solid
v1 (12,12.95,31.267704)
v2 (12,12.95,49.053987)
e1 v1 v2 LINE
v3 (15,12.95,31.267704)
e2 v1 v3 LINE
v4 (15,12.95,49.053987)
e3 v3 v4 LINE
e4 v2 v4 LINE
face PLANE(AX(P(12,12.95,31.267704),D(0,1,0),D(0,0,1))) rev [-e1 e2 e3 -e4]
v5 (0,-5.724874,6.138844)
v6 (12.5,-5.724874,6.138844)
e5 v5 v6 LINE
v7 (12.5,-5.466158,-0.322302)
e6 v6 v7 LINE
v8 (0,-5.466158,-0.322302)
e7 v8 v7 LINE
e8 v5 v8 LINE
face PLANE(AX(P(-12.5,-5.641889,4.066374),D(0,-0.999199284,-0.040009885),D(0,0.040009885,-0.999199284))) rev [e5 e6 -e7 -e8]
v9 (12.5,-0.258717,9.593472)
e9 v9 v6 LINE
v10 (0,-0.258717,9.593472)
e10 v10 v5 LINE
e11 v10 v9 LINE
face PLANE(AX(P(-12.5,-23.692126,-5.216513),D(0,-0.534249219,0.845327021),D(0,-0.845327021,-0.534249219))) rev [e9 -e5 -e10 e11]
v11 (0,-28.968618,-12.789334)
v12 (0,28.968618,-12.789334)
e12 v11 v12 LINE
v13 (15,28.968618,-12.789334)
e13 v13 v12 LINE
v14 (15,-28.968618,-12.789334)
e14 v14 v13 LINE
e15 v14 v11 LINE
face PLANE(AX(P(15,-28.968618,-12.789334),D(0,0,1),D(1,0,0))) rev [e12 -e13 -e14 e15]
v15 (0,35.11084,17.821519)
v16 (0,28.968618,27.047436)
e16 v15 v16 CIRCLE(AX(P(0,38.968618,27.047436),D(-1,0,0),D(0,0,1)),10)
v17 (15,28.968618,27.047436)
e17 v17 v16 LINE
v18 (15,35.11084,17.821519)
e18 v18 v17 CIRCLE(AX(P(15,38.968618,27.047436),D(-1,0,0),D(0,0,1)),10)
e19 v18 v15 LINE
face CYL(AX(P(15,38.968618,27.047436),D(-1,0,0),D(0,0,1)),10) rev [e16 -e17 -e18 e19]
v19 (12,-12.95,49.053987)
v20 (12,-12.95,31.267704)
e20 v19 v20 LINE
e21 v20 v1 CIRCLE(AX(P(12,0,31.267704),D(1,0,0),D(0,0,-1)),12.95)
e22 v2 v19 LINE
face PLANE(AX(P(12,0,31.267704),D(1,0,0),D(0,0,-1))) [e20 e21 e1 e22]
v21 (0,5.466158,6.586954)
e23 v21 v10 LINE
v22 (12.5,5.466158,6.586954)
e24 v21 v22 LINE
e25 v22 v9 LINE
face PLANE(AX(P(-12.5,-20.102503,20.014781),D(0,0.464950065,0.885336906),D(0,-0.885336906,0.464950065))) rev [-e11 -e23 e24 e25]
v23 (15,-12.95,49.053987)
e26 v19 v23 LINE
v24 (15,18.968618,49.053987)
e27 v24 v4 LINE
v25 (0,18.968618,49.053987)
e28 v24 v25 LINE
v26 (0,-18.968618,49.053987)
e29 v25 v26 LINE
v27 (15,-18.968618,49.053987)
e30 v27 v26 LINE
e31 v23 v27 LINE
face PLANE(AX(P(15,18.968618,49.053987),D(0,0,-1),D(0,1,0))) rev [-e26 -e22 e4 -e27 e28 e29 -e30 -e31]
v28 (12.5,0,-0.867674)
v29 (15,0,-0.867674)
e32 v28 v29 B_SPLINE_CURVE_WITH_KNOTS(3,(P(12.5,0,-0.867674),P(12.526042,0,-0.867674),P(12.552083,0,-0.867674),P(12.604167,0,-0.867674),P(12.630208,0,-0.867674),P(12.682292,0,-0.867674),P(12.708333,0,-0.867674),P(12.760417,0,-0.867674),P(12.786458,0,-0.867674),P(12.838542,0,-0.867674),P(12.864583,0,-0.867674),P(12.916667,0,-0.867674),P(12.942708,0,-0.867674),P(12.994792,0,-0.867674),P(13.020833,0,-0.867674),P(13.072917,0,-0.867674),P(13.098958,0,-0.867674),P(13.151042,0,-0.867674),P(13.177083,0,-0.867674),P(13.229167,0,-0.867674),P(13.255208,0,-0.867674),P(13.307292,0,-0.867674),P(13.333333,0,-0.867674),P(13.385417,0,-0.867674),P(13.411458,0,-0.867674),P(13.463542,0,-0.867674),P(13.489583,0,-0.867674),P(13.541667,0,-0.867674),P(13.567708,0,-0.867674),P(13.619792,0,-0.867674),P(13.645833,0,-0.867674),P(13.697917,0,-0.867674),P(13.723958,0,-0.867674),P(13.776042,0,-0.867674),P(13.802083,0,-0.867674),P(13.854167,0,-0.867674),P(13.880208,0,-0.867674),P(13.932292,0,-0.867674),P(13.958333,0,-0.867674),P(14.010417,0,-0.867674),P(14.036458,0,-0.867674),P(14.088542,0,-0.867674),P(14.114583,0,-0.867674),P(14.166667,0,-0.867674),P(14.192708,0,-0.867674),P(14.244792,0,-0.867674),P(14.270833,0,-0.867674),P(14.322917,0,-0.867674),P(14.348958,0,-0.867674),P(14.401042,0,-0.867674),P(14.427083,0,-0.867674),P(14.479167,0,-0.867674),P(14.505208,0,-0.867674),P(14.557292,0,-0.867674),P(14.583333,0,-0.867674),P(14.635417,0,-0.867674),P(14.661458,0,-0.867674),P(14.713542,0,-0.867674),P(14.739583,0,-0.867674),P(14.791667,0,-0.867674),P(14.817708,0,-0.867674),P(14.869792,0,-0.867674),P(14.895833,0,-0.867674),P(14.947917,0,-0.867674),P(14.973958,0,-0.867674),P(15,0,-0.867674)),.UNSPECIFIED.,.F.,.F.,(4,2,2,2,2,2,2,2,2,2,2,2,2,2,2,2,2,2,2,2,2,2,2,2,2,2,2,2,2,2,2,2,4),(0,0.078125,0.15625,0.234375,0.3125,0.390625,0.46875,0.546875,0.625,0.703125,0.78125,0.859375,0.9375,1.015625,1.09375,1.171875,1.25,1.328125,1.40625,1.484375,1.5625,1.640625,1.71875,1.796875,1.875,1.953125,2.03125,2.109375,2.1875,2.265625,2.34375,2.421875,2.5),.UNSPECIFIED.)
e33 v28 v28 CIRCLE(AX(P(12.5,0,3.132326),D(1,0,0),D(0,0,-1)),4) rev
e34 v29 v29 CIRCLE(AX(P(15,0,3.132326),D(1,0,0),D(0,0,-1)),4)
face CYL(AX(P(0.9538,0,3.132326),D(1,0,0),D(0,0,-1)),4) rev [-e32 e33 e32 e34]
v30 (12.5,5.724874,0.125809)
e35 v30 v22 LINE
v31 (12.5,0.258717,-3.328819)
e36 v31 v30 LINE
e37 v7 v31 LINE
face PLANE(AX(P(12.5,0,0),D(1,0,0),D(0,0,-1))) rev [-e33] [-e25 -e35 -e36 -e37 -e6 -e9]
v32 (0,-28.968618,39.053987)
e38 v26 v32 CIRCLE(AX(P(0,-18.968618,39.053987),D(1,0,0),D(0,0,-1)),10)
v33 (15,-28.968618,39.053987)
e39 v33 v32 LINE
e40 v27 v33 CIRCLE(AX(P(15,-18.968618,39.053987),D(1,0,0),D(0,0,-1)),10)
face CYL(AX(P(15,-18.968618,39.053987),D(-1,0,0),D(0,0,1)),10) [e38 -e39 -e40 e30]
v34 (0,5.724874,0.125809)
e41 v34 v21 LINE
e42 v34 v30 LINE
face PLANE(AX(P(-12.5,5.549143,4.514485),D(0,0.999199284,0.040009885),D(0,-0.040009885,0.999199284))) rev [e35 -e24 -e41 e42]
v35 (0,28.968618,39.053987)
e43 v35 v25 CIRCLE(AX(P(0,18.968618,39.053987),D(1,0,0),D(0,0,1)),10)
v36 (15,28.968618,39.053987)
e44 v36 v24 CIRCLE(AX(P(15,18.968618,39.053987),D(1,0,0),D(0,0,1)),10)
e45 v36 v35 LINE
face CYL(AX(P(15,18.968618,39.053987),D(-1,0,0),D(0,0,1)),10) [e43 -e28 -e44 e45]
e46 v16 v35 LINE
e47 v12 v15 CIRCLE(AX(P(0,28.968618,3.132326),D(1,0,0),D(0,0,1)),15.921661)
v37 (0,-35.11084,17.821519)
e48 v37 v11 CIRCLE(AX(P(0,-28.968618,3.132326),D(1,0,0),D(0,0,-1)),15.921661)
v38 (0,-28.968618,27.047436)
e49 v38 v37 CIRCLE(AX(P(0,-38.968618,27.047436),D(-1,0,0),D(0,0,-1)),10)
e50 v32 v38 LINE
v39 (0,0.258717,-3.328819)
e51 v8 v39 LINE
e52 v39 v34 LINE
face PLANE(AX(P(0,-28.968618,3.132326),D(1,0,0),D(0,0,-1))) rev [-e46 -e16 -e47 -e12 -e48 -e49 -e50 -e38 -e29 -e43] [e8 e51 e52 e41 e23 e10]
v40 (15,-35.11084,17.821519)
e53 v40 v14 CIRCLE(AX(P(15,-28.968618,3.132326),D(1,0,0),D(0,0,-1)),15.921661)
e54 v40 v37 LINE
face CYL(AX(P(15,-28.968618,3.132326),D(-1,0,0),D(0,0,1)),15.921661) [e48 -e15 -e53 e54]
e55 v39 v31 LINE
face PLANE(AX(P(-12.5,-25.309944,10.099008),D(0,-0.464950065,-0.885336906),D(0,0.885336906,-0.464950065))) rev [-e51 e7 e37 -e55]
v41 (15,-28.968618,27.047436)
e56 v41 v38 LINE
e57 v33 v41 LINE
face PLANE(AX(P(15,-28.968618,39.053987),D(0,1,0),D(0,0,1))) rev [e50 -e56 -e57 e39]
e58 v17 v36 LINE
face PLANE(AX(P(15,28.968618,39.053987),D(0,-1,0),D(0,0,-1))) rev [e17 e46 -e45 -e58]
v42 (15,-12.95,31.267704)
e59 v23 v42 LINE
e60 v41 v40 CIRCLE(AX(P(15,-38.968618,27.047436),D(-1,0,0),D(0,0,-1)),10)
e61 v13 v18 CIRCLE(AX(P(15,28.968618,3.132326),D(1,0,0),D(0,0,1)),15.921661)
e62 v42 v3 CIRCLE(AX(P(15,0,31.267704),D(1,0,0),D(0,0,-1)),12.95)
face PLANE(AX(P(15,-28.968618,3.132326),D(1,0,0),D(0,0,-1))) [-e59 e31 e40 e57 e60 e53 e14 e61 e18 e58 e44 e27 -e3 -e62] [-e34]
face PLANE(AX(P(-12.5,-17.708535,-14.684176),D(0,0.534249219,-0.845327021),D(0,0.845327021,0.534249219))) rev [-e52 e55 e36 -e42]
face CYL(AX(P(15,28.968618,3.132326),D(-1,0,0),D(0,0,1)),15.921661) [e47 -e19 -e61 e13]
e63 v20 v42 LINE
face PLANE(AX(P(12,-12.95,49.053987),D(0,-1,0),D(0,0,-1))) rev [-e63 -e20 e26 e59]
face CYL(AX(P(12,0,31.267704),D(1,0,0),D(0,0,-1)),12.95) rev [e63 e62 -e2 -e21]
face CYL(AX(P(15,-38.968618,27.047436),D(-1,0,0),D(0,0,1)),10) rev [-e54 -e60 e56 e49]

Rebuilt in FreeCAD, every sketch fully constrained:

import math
import FreeCAD as App
import Part
import Sketcher
Q = App.Units.Quantity

doc = App.newDocument("Part")
params = doc.addObject("Spreadsheet::Sheet", "Params")
for row, (alias, value) in enumerate([
    ("sketch1_radius", "10 mm"),
    ("pad1_length", "15 mm"),
    ("sketch2_diameter", "8 mm"),
    ("pocket1_length", "14.0462 mm"),
    ("sketch3_radius", "12.95 mm"),
    ("pocket2_length", "3 mm"),
    ("pocket3_length", "25 mm"),
], start=1):
    params.set(f"A{row}", alias)
    params.set(f"B{row}", "=" + value)
    params.setAlias(f"B{row}", alias)

body = doc.addObject("PartDesign::Body", "Body")

sketch1 = body.newObject("Sketcher::SketchObject", "Sketch")
sketch1.AttachmentSupport = (doc.getObject("YZ_Plane"), [""])
sketch1.MapMode = "FlatFace"
sketch1.addGeometry(Part.LineSegment(App.Vector(-29, -13, 0), App.Vector(29, -13, 0)), False)
sketch1.addGeometry(Part.ArcOfCircle(Part.Circle(App.Vector(29, 3, 0), App.Vector(0, 0, 1), 16), math.radians(-90), math.radians(67)), False)
sketch1.addGeometry(Part.ArcOfCircle(Part.Circle(App.Vector(39, 27, 0), App.Vector(0, 0, 1), 10), math.radians(180), math.radians(247)), False)
sketch1.addGeometry(Part.LineSegment(App.Vector(29, 27, 0), App.Vector(29, 39, 0)), False)
sketch1.addGeometry(Part.ArcOfCircle(Part.Circle(App.Vector(19, 39, 0), App.Vector(0, 0, 1), 10), math.radians(0), math.radians(90)), False)
sketch1.addGeometry(Part.LineSegment(App.Vector(19, 49, 0), App.Vector(-19, 49, 0)), False)
sketch1.addGeometry(Part.ArcOfCircle(Part.Circle(App.Vector(-19, 39, 0), App.Vector(0, 0, 1), 10), math.radians(90), math.radians(180)), False)
sketch1.addGeometry(Part.LineSegment(App.Vector(-29, 39, 0), App.Vector(-29, 27, 0)), False)
sketch1.addGeometry(Part.ArcOfCircle(Part.Circle(App.Vector(-39, 27, 0), App.Vector(0, 0, 1), 10), math.radians(-67), math.radians(0)), False)
sketch1.addGeometry(Part.ArcOfCircle(Part.Circle(App.Vector(-29, 3, 0), App.Vector(0, 0, 1), 16), math.radians(113), math.radians(270)), False)
sketch1.addConstraint(Sketcher.Constraint("Tangent", 0, 2, 1, 1))
sketch1.addConstraint(Sketcher.Constraint("Tangent", 1, 2, 2, 2))
sketch1.addConstraint(Sketcher.Constraint("Tangent", 2, 1, 3, 1))
sketch1.addConstraint(Sketcher.Constraint("Tangent", 3, 2, 4, 1))
sketch1.addConstraint(Sketcher.Constraint("Tangent", 4, 2, 5, 1))
sketch1.addConstraint(Sketcher.Constraint("Tangent", 5, 2, 6, 1))
sketch1.addConstraint(Sketcher.Constraint("Tangent", 6, 2, 7, 1))
sketch1.addConstraint(Sketcher.Constraint("Tangent", 7, 2, 8, 2))
sketch1.addConstraint(Sketcher.Constraint("Tangent", 8, 1, 9, 1))
sketch1.addConstraint(Sketcher.Constraint("Tangent", 9, 2, 0, 1))
sketch1.addConstraint(Sketcher.Constraint("Horizontal", 0))
sketch1.addConstraint(Sketcher.Constraint("Vertical", 3))
sketch1.addConstraint(Sketcher.Constraint("Horizontal", 5))
sketch1.addConstraint(Sketcher.Constraint("Vertical", 7))
sketch1.addConstraint(Sketcher.Constraint("Equal", 2, 4))
sketch1.addConstraint(Sketcher.Constraint("Equal", 4, 6))
sketch1.addConstraint(Sketcher.Constraint("Equal", 6, 8))
sketch1.addConstraint(Sketcher.Constraint("Equal", 1, 9))
sketch1.addConstraint(Sketcher.Constraint("Symmetric", 2, 3, 8, 3, -2))
sketch1.addConstraint(Sketcher.Constraint("Vertical", 0, 2, 2, 1))
sketch1.addConstraint(Sketcher.Constraint("Radius", 2, Q("10 mm")))
sketch1.addConstraint(Sketcher.Constraint("Radius", 1, Q("15.921661 mm")))
sketch1.addConstraint(Sketcher.Constraint("DistanceY", 3, 1, 3, 2, Q("12.006551 mm")))
sketch1.addConstraint(Sketcher.Constraint("DistanceX", 0, 1, 0, 2, Q("57.937236 mm")))
sketch1.addConstraint(Sketcher.Constraint("DistanceY", -1, 1, 1, 2, Q("17.821519 mm")))
sketch1.setExpression("Constraints[20]", "Params.sketch1_radius")
pad1 = body.newObject("PartDesign::Pad", "Pad")
pad1.Profile = sketch1
pad1.setExpression("Length", "Params.pad1_length")

sketch2 = body.newObject("Sketcher::SketchObject", "Sketch001")
sketch2.AttachmentSupport = (doc.getObject("YZ_Plane"), [""])
sketch2.MapMode = "FlatFace"
sketch2.AttachmentOffset = App.Placement(App.Vector(0, 0, 15), App.Rotation())
sketch2.addGeometry(Part.Circle(App.Vector(0, 3.1, 0), App.Vector(0, 0, 1), 4), False)
sketch2.addConstraint(Sketcher.Constraint("PointOnObject", 0, 3, -2))
sketch2.addConstraint(Sketcher.Constraint("Diameter", 0, Q("8 mm")))
sketch2.addConstraint(Sketcher.Constraint("DistanceY", -1, 1, 0, 3, Q("3.132326 mm")))
sketch2.setExpression("Constraints[1]", "Params.sketch2_diameter")
pocket1 = body.newObject("PartDesign::Pocket", "Pocket")
pocket1.Profile = sketch2
pocket1.setExpression("Length", "Params.pocket1_length")

sketch3 = body.newObject("Sketcher::SketchObject", "Sketch002")
sketch3.AttachmentSupport = (doc.getObject("YZ_Plane"), [""])
sketch3.MapMode = "FlatFace"
sketch3.AttachmentOffset = App.Placement(App.Vector(0, 0, 15), App.Rotation())
sketch3.addGeometry(Part.LineSegment(App.Vector(-13, 49, 0), App.Vector(-13, 31, 0)), False)
sketch3.addGeometry(Part.ArcOfCircle(Part.Circle(App.Vector(0, 31, 0), App.Vector(0, 0, 1), 13), math.radians(180), math.radians(360)), False)
sketch3.addGeometry(Part.LineSegment(App.Vector(13, 31, 0), App.Vector(13, 49, 0)), False)
sketch3.addGeometry(Part.LineSegment(App.Vector(13, 49, 0), App.Vector(-13, 49, 0)), False)
sketch3.addConstraint(Sketcher.Constraint("Tangent", 0, 2, 1, 1))
sketch3.addConstraint(Sketcher.Constraint("Tangent", 1, 2, 2, 1))
sketch3.addConstraint(Sketcher.Constraint("Coincident", 2, 2, 3, 1))
sketch3.addConstraint(Sketcher.Constraint("Coincident", 3, 2, 0, 1))
sketch3.addConstraint(Sketcher.Constraint("Vertical", 0))
sketch3.addConstraint(Sketcher.Constraint("Vertical", 2))
sketch3.addConstraint(Sketcher.Constraint("Horizontal", 3))
sketch3.addConstraint(Sketcher.Constraint("PointOnObject", 1, 3, -2))
sketch3.addConstraint(Sketcher.Constraint("Radius", 1, Q("12.95 mm")))
sketch3.addConstraint(Sketcher.Constraint("DistanceY", 0, 2, 0, 1, Q("17.786283 mm")))
sketch3.addConstraint(Sketcher.Constraint("DistanceY", -1, 1, 1, 3, Q("31.267704 mm")))
sketch3.setExpression("Constraints[8]", "Params.sketch3_radius")
pocket2 = body.newObject("PartDesign::Pocket", "Pocket001")
pocket2.Profile = sketch3
pocket2.setExpression("Length", "Params.pocket2_length")

sketch4 = body.newObject("Sketcher::SketchObject", "Sketch003")
sketch4.AttachmentSupport = (doc.getObject("YZ_Plane"), [""])
sketch4.MapMode = "FlatFace"
sketch4.addGeometry(Part.LineSegment(App.Vector(5, 7, 0), App.Vector(0, 10, 0)), False)
sketch4.addGeometry(Part.LineSegment(App.Vector(0, 10, 0), App.Vector(-6, 6, 0)), False)
sketch4.addGeometry(Part.LineSegment(App.Vector(-6, 6, 0), App.Vector(-5, 0, 0)), False)
sketch4.addGeometry(Part.LineSegment(App.Vector(-5, 0, 0), App.Vector(0, -3, 0)), False)
sketch4.addGeometry(Part.LineSegment(App.Vector(0, -3, 0), App.Vector(6, 0, 0)), False)
sketch4.addGeometry(Part.LineSegment(App.Vector(6, 0, 0), App.Vector(5, 7, 0)), False)
sketch4.addConstraint(Sketcher.Constraint("Coincident", 0, 2, 1, 1))
sketch4.addConstraint(Sketcher.Constraint("Coincident", 1, 2, 2, 1))
sketch4.addConstraint(Sketcher.Constraint("Coincident", 2, 2, 3, 1))
sketch4.addConstraint(Sketcher.Constraint("Coincident", 3, 2, 4, 1))
sketch4.addConstraint(Sketcher.Constraint("Coincident", 4, 2, 5, 1))
sketch4.addConstraint(Sketcher.Constraint("Coincident", 5, 2, 0, 1))
sketch4.addConstraint(Sketcher.Constraint("Parallel", 0, 3))
sketch4.addConstraint(Sketcher.Constraint("Parallel", 1, 4))
sketch4.addConstraint(Sketcher.Constraint("Parallel", 2, 5))
sketch4.addConstraint(Sketcher.Constraint("Equal", 0, 1))
sketch4.addConstraint(Sketcher.Constraint("Equal", 1, 2))
sketch4.addConstraint(Sketcher.Constraint("Equal", 2, 3))
sketch4.addConstraint(Sketcher.Constraint("DistanceY", 2, 2, -1, 1, Q("0.322302 mm")))
sketch4.addConstraint(Sketcher.Constraint("DistanceY", -1, 1, 0, 2, Q("9.593472 mm")))
sketch4.addConstraint(Sketcher.Constraint("DistanceY", 3, 2, -1, 1, Q("3.328819 mm")))
sketch4.addConstraint(Sketcher.Constraint("DistanceY", -1, 1, 4, 2, Q("0.125809 mm")))
sketch4.addConstraint(Sketcher.Constraint("DistanceX", 2, 2, 0, 2, Q("5.207441 mm")))
sketch4.addConstraint(Sketcher.Constraint("DistanceX", 0, 2, -1, 1, Q("0.258717 mm")))
pocket3 = body.newObject("PartDesign::Pocket", "Pocket002")
pocket3.Profile = sketch4
pocket3.setExpression("Length", "Params.pocket3_length")
pocket3.Midplane = True

doc.recompute()
